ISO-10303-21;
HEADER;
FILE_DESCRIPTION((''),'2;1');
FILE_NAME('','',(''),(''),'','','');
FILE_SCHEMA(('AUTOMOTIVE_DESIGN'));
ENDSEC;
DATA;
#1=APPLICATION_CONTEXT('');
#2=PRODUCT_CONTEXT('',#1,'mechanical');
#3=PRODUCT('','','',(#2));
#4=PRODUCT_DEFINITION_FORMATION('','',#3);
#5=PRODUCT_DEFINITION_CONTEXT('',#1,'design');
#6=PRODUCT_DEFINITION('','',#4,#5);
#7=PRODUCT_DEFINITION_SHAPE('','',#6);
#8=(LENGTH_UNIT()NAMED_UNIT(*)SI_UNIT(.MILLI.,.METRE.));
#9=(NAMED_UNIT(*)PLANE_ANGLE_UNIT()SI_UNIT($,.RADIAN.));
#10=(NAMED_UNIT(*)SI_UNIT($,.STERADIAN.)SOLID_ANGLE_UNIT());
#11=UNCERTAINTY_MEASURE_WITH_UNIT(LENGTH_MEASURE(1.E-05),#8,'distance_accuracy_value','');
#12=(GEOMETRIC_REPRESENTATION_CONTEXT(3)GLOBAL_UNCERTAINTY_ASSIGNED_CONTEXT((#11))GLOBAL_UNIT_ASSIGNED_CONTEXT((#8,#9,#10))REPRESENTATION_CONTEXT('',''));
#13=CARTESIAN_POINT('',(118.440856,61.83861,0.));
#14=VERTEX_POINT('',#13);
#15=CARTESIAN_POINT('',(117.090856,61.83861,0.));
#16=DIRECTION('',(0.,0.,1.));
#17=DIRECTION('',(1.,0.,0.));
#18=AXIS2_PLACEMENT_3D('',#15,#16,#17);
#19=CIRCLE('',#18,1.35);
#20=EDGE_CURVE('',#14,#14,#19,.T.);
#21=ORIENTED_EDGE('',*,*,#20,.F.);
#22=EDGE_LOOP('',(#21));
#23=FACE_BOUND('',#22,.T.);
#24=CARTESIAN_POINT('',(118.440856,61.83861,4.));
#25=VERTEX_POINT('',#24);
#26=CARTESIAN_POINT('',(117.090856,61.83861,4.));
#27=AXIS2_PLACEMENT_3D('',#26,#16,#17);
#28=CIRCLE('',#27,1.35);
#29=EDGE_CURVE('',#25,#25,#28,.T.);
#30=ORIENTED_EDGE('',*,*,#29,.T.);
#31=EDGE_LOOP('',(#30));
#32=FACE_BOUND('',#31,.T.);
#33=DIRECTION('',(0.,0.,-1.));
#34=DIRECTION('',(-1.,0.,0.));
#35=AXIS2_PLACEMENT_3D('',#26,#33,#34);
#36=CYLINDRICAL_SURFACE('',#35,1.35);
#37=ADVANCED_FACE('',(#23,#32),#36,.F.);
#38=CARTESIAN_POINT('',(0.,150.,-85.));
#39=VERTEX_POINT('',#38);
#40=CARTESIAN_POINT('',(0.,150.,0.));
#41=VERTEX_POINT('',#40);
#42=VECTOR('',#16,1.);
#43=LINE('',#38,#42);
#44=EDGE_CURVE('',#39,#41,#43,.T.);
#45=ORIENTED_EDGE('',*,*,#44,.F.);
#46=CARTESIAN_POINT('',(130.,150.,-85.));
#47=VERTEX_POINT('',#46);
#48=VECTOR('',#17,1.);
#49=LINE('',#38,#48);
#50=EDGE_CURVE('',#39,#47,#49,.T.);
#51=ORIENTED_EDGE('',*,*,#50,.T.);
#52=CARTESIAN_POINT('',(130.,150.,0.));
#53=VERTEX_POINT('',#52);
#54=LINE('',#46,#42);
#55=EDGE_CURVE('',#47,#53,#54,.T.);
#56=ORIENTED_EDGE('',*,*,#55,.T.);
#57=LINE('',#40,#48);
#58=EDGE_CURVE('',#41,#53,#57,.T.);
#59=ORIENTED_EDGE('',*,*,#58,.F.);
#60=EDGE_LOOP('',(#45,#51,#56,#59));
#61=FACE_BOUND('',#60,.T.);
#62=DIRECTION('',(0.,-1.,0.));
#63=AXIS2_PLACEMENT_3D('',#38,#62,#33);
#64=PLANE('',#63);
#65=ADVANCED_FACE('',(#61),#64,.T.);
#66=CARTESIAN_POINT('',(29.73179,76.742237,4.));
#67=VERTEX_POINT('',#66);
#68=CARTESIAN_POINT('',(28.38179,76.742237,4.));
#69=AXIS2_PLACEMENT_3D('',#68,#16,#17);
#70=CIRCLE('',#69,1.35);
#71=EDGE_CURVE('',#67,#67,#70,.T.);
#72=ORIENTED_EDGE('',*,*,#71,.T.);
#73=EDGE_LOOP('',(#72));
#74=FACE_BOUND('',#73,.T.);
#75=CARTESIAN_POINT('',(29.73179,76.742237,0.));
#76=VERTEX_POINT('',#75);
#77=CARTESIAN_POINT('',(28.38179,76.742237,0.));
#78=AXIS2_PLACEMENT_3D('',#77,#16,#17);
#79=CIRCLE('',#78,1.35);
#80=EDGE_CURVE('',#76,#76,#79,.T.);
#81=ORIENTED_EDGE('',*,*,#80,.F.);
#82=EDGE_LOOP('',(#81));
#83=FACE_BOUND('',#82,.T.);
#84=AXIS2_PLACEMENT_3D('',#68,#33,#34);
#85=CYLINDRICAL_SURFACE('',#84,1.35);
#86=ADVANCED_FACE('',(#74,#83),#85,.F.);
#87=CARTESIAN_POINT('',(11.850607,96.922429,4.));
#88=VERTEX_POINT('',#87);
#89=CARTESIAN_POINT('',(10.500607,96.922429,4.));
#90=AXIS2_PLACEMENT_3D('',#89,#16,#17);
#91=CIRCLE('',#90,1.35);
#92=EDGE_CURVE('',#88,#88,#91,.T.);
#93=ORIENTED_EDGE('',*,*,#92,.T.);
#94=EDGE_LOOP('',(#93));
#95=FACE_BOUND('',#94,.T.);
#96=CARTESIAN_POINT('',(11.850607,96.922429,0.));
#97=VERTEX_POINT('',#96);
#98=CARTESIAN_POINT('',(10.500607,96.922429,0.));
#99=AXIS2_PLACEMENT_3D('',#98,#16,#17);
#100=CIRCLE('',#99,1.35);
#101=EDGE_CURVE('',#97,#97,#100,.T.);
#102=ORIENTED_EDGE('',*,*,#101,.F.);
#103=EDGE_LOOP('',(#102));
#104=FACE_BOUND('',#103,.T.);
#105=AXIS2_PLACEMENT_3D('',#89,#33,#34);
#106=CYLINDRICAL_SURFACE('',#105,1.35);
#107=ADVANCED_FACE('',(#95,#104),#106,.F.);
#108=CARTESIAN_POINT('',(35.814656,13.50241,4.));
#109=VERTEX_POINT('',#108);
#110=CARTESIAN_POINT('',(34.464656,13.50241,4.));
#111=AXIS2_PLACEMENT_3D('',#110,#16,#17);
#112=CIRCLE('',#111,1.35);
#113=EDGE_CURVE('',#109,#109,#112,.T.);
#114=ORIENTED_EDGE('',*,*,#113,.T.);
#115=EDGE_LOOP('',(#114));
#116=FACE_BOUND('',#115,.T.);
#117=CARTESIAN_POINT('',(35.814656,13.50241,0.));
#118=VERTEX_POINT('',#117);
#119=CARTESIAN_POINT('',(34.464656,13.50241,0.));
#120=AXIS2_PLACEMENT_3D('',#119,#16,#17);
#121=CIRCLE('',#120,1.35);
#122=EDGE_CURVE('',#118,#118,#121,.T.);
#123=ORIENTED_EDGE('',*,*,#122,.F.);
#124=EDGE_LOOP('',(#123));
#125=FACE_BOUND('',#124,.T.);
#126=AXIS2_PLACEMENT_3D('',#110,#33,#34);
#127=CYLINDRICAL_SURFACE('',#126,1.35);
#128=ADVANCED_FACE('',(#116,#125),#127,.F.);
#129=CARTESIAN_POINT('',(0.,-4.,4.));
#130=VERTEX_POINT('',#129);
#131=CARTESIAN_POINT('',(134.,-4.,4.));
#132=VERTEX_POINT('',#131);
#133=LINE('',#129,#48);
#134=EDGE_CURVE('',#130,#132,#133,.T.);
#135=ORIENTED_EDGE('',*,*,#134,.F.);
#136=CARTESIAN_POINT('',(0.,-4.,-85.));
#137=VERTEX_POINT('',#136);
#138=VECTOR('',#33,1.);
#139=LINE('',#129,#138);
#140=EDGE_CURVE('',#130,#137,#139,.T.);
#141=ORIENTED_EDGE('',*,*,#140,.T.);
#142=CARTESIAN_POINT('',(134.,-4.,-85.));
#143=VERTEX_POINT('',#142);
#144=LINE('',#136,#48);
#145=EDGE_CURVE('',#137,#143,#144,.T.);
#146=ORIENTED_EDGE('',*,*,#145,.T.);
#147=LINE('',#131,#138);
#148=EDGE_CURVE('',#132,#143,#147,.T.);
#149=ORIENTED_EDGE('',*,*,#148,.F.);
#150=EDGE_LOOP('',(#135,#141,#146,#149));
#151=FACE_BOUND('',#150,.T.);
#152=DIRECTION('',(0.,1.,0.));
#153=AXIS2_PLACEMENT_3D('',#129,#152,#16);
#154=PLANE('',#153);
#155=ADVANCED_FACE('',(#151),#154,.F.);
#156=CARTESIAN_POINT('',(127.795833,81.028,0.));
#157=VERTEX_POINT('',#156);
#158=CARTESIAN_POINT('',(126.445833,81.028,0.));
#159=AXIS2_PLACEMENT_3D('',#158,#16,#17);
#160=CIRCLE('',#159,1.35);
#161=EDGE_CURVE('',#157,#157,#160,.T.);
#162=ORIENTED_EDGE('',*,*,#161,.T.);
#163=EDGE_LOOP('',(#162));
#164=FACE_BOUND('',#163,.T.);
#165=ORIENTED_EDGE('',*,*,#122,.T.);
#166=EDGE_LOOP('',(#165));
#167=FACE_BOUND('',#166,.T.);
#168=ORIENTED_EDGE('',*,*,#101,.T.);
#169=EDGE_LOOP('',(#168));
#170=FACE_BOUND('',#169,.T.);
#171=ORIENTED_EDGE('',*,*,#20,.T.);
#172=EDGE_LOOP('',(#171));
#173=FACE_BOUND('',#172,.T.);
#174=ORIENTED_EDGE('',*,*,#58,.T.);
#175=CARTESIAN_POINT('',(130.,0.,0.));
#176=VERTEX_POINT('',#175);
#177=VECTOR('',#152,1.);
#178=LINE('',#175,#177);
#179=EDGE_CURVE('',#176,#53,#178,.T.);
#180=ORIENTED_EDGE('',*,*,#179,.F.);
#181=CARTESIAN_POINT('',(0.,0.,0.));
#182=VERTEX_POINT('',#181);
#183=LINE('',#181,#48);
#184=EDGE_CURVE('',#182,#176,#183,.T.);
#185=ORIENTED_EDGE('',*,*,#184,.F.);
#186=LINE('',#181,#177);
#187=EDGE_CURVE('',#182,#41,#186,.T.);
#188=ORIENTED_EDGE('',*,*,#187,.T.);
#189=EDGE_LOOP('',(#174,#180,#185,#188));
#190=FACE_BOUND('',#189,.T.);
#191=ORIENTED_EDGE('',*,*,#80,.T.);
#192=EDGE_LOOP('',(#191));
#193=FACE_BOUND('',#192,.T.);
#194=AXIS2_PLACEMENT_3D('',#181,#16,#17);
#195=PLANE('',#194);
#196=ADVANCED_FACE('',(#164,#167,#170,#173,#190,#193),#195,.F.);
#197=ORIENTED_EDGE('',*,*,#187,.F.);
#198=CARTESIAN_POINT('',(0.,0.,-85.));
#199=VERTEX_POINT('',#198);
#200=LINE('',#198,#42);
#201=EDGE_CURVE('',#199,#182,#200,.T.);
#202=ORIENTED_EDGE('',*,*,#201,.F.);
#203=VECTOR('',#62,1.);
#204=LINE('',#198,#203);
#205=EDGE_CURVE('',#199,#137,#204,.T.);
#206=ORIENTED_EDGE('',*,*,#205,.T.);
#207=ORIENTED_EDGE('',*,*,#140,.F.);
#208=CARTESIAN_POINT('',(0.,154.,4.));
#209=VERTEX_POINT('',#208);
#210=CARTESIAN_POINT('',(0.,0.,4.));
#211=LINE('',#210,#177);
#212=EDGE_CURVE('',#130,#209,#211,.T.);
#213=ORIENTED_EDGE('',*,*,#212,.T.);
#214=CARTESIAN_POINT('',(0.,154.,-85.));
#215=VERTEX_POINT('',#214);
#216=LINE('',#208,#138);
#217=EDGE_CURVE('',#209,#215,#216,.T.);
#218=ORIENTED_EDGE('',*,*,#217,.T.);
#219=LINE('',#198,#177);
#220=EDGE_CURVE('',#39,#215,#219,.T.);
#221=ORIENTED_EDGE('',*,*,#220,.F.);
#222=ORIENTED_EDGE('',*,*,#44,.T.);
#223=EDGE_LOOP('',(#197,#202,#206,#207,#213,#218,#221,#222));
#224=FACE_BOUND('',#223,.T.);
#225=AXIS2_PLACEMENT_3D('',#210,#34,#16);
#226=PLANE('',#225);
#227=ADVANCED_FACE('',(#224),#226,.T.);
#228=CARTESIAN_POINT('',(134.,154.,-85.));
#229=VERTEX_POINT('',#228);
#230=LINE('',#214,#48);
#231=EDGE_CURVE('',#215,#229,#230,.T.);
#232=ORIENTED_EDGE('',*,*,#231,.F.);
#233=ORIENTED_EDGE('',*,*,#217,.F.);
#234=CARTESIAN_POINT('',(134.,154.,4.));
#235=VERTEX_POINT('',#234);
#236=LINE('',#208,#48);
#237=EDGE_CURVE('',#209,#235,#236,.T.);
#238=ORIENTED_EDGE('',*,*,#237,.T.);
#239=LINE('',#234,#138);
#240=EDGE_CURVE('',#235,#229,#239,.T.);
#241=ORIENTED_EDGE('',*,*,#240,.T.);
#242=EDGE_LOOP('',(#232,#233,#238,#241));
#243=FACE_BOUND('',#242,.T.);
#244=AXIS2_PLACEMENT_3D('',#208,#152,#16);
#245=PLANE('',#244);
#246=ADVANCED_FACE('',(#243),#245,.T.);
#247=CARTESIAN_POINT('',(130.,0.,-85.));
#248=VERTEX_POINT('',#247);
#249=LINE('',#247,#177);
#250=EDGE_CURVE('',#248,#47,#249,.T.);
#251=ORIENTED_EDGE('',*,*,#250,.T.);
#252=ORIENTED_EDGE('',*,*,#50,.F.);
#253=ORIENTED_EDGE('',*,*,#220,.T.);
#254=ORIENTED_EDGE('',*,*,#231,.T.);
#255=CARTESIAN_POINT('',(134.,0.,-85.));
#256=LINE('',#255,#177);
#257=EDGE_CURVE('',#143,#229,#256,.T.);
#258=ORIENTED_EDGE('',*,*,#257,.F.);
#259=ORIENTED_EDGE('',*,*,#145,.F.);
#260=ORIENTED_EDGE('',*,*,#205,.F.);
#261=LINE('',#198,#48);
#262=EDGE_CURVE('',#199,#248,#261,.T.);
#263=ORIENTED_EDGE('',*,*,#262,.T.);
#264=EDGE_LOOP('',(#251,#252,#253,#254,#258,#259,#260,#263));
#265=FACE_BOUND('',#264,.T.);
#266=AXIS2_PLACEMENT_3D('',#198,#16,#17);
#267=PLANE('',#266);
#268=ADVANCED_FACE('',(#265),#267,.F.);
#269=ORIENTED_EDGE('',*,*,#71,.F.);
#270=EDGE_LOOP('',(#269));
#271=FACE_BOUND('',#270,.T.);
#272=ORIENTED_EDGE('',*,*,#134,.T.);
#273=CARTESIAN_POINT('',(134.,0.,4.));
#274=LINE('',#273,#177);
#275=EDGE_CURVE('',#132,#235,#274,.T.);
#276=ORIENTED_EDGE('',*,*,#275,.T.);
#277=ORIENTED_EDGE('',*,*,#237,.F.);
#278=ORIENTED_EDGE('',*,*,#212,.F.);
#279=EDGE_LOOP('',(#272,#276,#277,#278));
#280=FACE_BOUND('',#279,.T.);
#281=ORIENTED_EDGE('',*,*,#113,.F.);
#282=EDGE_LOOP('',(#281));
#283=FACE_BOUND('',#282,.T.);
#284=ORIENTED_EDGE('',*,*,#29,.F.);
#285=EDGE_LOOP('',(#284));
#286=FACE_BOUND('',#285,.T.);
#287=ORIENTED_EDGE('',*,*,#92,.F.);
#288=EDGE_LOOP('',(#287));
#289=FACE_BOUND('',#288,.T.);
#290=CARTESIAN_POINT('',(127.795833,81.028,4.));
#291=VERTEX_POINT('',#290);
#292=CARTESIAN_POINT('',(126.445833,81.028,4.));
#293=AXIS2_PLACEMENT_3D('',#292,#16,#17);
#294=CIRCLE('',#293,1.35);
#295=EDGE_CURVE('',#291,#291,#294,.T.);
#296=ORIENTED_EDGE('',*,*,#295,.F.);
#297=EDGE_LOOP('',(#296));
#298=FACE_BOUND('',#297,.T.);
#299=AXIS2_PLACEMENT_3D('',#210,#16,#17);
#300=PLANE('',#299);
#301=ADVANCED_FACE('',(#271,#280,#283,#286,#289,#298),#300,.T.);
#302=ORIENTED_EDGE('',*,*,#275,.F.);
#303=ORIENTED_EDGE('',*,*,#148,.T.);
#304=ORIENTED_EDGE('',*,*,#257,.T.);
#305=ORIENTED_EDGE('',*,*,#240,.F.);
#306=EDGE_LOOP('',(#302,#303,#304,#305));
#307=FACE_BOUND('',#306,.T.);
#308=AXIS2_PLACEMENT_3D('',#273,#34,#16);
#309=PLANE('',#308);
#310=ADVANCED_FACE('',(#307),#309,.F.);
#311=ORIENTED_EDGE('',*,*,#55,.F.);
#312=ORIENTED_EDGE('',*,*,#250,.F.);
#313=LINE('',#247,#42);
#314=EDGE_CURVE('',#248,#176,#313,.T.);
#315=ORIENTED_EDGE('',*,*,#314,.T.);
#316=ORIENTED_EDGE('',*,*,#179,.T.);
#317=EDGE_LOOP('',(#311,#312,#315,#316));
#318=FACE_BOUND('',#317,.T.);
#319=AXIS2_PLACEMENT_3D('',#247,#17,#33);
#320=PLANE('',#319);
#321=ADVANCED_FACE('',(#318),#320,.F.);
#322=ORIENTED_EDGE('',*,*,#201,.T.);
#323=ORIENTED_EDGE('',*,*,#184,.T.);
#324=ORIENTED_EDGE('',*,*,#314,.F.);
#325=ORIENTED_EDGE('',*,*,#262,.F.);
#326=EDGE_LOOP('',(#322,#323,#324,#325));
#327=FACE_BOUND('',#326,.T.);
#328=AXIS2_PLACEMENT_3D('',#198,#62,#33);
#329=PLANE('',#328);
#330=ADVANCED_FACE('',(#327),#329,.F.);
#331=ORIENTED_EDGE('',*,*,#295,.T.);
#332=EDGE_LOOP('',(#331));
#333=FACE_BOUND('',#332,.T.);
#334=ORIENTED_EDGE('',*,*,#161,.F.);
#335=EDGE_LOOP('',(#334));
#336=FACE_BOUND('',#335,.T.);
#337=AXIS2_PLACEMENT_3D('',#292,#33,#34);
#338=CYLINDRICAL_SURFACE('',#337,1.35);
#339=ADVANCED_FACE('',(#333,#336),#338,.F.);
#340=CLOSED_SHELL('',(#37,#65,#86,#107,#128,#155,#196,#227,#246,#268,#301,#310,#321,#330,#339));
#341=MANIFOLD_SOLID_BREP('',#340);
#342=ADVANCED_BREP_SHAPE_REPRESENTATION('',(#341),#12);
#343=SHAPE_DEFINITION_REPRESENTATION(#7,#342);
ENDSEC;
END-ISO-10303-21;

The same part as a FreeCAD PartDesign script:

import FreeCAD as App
import Part
import Sketcher


def add_polygon(sketch, points):
    """Adds a closed chain of lines whose ends are joined by coincident constraints."""
    first, n = sketch.GeometryCount, len(points)
    for a, b in zip(points, points[1:] + points[:1]):
        sketch.addGeometry(Part.LineSegment(App.Vector(*a, 0), App.Vector(*b, 0)), False)
    for i in range(n):
        sketch.addConstraint(Sketcher.Constraint("Coincident", first + i, 2, first + (i + 1) % n, 1))

doc = App.newDocument("Part")
body = doc.addObject("PartDesign::Body", "Body")

# Sketch on XY plane
sketch1 = doc.addObject("Sketcher::SketchObject", "Sketch")
body.addObject(sketch1)
sketch1.AttachmentSupport = (doc.XY_Plane, [""])
sketch1.MapMode = "FlatFace"
add_polygon(sketch1, [(0, 154), (0, -4), (134, -4), (134, 154)])  # lines 0-3
sketch1.addGeometry(Part.Circle(App.Vector(34.464656, 13.50241, 0), App.Vector(0, 0, 1), 1.35), False)  # 4
sketch1.addGeometry(Part.Circle(App.Vector(28.38179, 76.742237, 0), App.Vector(0, 0, 1), 1.35), False)  # 5
sketch1.addGeometry(Part.Circle(App.Vector(10.500607, 96.922429, 0), App.Vector(0, 0, 1), 1.35), False)  # 6
sketch1.addGeometry(Part.Circle(App.Vector(117.090856, 61.83861, 0), App.Vector(0, 0, 1), 1.35), False)  # 7
sketch1.addGeometry(Part.Circle(App.Vector(126.445833, 81.028, 0), App.Vector(0, 0, 1), 1.35), False)  # 8
sketch1.addConstraint([
    Sketcher.Constraint("Vertical", 0),
    Sketcher.Constraint("Horizontal", 1),
    Sketcher.Constraint("Vertical", 2),
    Sketcher.Constraint("Horizontal", 3),
    Sketcher.Constraint("Equal", 4, 5),
    Sketcher.Constraint("Equal", 5, 6),
    Sketcher.Constraint("Equal", 6, 7),
    Sketcher.Constraint("Equal", 7, 8),
    Sketcher.Constraint("PointOnObject", 0, 2, -2),
    Sketcher.Constraint("Diameter", 4, 2.7),
    Sketcher.Constraint("DistanceX", 1, 1, 1, 2, 134.0),
    Sketcher.Constraint("DistanceY", 0, 2, 0, 1, 158.0),
    Sketcher.Constraint("DistanceY", 0, 2, -1, 1, 4.0),
    Sketcher.Constraint("DistanceY", -1, 1, 8, 3, 81.028),
    Sketcher.Constraint("DistanceX", 4, 3, 7, 3, 82.6262),
    Sketcher.Constraint("DistanceY", 4, 3, 7, 3, 48.3362),
    Sketcher.Constraint("DistanceY", -1, 1, 4, 3, 13.50241),
    Sketcher.Constraint("DistanceX", -1, 1, 5, 3, 28.38179),
    Sketcher.Constraint("DistanceY", -1, 1, 6, 3, 96.922429),
    Sketcher.Constraint("DistanceY", 5, 3, 6, 3, 20.180192),
    Sketcher.Constraint("DistanceX", 6, 3, 4, 3, 23.964049),
    Sketcher.Constraint("DistanceX", -1, 1, 4, 3, 34.464656),
    Sketcher.Constraint("DistanceX", -1, 1, 8, 3, 126.445833),
])
pad1 = doc.addObject("PartDesign::Pad", "Pad")
body.addObject(pad1)
pad1.Profile = sketch1
pad1.Length = 4

# Sketch on XY plane
sketch2 = doc.addObject("Sketcher::SketchObject", "Sketch001")
body.addObject(sketch2)
sketch2.AttachmentSupport = (doc.XY_Plane, [""])
sketch2.MapMode = "FlatFace"
sketch2.AttachmentOffset = App.Placement(App.Vector(0, 0, -85), App.Rotation())
add_polygon(sketch2, [(134, 154), (0, 154), (0, 150), (130, 150), (130, 0), (0, 0), (0, -4), (134, -4)])  # lines 0-7
sketch2.addConstraint([
    Sketcher.Constraint("Horizontal", 0),
    Sketcher.Constraint("Vertical", 1),
    Sketcher.Constraint("Horizontal", 2),
    Sketcher.Constraint("Vertical", 3),
    Sketcher.Constraint("Horizontal", 4),
    Sketcher.Constraint("Vertical", 5),
    Sketcher.Constraint("Horizontal", 6),
    Sketcher.Constraint("Vertical", 7),
    Sketcher.Constraint("Coincident", 4, 2, -1, 1),
    Sketcher.Constraint("PointOnObject", 0, 2, -2),
    Sketcher.Constraint("Equal", 1, 5),
    Sketcher.Constraint("DistanceX", 0, 2, 0, 1, 134.0),
    Sketcher.Constraint("DistanceX", 2, 1, 2, 2, 130.0),
    Sketcher.Constraint("DistanceY", 1, 2, 1, 1, 4.0),
    Sketcher.Constraint("DistanceY", 3, 2, 3, 1, 150.0),
])
pad2 = doc.addObject("PartDesign::Pad", "Pad001")
body.addObject(pad2)
pad2.Profile = sketch2
pad2.Length = 85

doc.recompute()
